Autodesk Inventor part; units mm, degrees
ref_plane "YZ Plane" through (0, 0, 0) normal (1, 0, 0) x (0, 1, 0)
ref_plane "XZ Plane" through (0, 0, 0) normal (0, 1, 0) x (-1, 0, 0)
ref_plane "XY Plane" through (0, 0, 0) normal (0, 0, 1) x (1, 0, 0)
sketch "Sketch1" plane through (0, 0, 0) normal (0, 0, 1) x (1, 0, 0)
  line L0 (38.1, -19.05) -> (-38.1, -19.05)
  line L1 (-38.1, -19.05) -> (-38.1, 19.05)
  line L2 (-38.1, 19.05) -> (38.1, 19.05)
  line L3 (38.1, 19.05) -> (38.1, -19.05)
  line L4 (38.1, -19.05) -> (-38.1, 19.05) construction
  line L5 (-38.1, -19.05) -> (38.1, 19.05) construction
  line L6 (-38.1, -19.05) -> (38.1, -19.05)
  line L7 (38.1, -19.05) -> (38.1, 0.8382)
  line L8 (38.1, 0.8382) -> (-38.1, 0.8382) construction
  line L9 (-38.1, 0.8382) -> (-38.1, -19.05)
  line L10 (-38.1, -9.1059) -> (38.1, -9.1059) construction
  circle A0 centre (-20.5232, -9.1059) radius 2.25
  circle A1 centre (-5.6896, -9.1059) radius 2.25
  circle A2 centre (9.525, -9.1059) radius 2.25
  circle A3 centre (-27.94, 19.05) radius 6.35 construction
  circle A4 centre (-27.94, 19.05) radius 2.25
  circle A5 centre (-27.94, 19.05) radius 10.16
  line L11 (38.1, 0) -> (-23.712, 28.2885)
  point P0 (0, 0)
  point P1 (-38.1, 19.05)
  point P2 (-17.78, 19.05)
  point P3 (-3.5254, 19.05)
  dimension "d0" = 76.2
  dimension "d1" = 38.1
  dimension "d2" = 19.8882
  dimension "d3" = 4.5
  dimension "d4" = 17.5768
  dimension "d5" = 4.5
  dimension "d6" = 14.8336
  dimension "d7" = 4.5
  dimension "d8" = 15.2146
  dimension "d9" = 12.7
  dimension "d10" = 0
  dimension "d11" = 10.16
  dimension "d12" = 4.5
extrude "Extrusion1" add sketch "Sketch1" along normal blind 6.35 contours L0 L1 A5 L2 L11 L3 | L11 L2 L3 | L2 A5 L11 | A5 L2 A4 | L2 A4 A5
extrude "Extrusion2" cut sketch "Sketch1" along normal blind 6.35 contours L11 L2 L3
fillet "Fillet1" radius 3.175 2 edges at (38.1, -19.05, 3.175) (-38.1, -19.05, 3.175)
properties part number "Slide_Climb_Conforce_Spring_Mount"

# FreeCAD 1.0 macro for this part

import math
import FreeCAD as App
import Part
import Sketcher
from FreeCAD import Vector
Q = App.Units.Quantity


def edges_at(feature, points):
    """Names of the edges that pass closest to the given points."""
    edges = feature.Shape.Edges
    near = lambda p: min(range(len(edges)), key=lambda i: edges[i].distToShape(Part.Vertex(*p))[0])
    return sorted({f"Edge{near(p) + 1}" for p in points})


def add_polygon(sketch, points):
    """Adds a closed chain of lines whose ends are joined by coincident constraints."""
    first, n = sketch.GeometryCount, len(points)
    for a, b in zip(points, points[1:] + points[:1]):
        sketch.addGeometry(Part.LineSegment(App.Vector(*a, 0), App.Vector(*b, 0)), False)
    for i in range(n):
        sketch.addConstraint(Sketcher.Constraint("Coincident", first + i, 2, first + (i + 1) % n, 1))

doc = App.newDocument("Part")
params = doc.addObject("Spreadsheet::Sheet", "Params")
for row, (alias, value) in enumerate([
    ("sketch1_radius", "0.4 in"),
    ("sketch1_width", "3 in"),
    ("sketch1_height", "1.5 in"),
    ("pad1_length", "0.25 in"),
    ("sketch2_height", "0.75 in"),
    ("pocket1_length", "0.25 in"),
    ("fillet_radius", "0.125 in"),
], start=1):
    params.set(f"A{row}", alias)
    params.set(f"B{row}", "=" + value)
    params.setAlias(f"B{row}", alias)

body = doc.addObject("PartDesign::Body", "Body")

# Sketch on XY plane
sketch1 = body.newObject("Sketcher::SketchObject", "Sketch")
sketch1.AttachmentSupport = (doc.getObject("XY_Plane"), [""])
sketch1.MapMode = "FlatFace"
sketch1.addGeometry(Part.LineSegment(Vector(-38.1, -19.1, 0), Vector(38.1, -19.1, 0)), False)
sketch1.addGeometry(Part.LineSegment(Vector(38.1, -19.1, 0), Vector(38.1, 19.1, 0)), False)
sketch1.addGeometry(Part.LineSegment(Vector(38.1, 19.1, 0), Vector(-3.5, 19.1, 0)), False)
sketch1.addGeometry(Part.LineSegment(Vector(-3.5, 19.1, 0), Vector(-23.7, 28.3, 0)), False)
sketch1.addGeometry(Part.ArcOfCircle(Part.Circle(Vector(-27.9, 19.1, 0), Vector(0, 0, 1), 10.2), math.radians(65), math.radians(180)), False)
sketch1.addGeometry(Part.LineSegment(Vector(-38.1, 19.1, 0), Vector(-38.1, -19.1, 0)), False)
sketch1.addGeometry(Part.Circle(Vector(-20.5, -9.1, 0), Vector(0, 0, 1), 2.2), False)
sketch1.addGeometry(Part.Circle(Vector(-5.7, -9.1, 0), Vector(0, 0, 1), 2.2), False)
sketch1.addGeometry(Part.Circle(Vector(9.5, -9.1, 0), Vector(0, 0, 1), 2.2), False)
sketch1.addGeometry(Part.Circle(Vector(-27.9, 19.1, 0), Vector(0, 0, 1), 2.2), False)
sketch1.addConstraint(Sketcher.Constraint("Coincident", 0, 2, 1, 1))
sketch1.addConstraint(Sketcher.Constraint("Coincident", 1, 2, 2, 1))
sketch1.addConstraint(Sketcher.Constraint("Coincident", 2, 2, 3, 1))
sketch1.addConstraint(Sketcher.Constraint("Tangent", 3, 2, 4, 1))
sketch1.addConstraint(Sketcher.Constraint("Tangent", 4, 2, 5, 1))
sketch1.addConstraint(Sketcher.Constraint("Coincident", 5, 2, 0, 1))
sketch1.addConstraint(Sketcher.Constraint("Horizontal", 0))
sketch1.addConstraint(Sketcher.Constraint("Vertical", 1))
sketch1.addConstraint(Sketcher.Constraint("Horizontal", 2))
sketch1.addConstraint(Sketcher.Constraint("Vertical", 5))
sketch1.addConstraint(Sketcher.Constraint("Coincident", 9, 3, 4, 3))
sketch1.addConstraint(Sketcher.Constraint("Equal", 6, 7))
sketch1.addConstraint(Sketcher.Constraint("Equal", 7, 8))
sketch1.addConstraint(Sketcher.Constraint("Equal", 8, 9))
sketch1.addConstraint(Sketcher.Constraint("Symmetric", 0, 2, 4, 2, -1, 1))
sketch1.addConstraint(Sketcher.Constraint("Horizontal", 6, 3, 7, 3))
sketch1.addConstraint(Sketcher.Constraint("Horizontal", 7, 3, 8, 3))
sketch1.addConstraint(Sketcher.Constraint("Horizontal", 9, 3, 1, 2))
sketch1.addConstraint(Sketcher.Constraint("Radius", 4, Q("0.4 in")))
sketch1.addConstraint(Sketcher.Constraint("DistanceX", 0, 1, 0, 2, Q("3 in")))
sketch1.addConstraint(Sketcher.Constraint("DistanceY", 1, 1, 1, 2, Q("1.5 in")))
sketch1.addConstraint(Sketcher.Constraint("Diameter", 6, Q("4.5 mm")))
sketch1.addConstraint(Sketcher.Constraint("DistanceX", 6, 3, 7, 3, Q("0.584 in")))
sketch1.addConstraint(Sketcher.Constraint("DistanceX", 7, 3, 8, 3, Q("0.599 in")))
sketch1.addConstraint(Sketcher.Constraint("DistanceX", 4, 2, 6, 3, Q("0.692 in")))
sketch1.addConstraint(Sketcher.Constraint("DistanceX", 2, 2, 2, 1, Q("1.6388 in")))
sketch1.addConstraint(Sketcher.Constraint("DistanceY", 6, 3, -1, 1, Q("0.3585 in")))
sketch1.setExpression("Constraints[18]", "Params.sketch1_radius")
sketch1.setExpression("Constraints[19]", "Params.sketch1_width")
sketch1.setExpression("Constraints[20]", "Params.sketch1_height")
pad1 = body.newObject("PartDesign::Pad", "Pad")
pad1.Profile = sketch1
pad1.setExpression("Length", "Params.pad1_length")

# Sketch on XY plane
sketch2 = body.newObject("Sketcher::SketchObject", "Sketch001")
sketch2.AttachmentSupport = (doc.getObject("XY_Plane"), [""])
sketch2.MapMode = "FlatFace"
add_polygon(sketch2, [(-4, 19), (38, 0), (38, 19)])  # lines 0-2
sketch2.addConstraint(Sketcher.Constraint("Vertical", 1))
sketch2.addConstraint(Sketcher.Constraint("Horizontal", 2))
sketch2.addConstraint(Sketcher.Constraint("PointOnObject", 0, 2, -1))
sketch2.addConstraint(Sketcher.Constraint("DistanceX", -1, 1, 0, 2, Q("1.5 in")))
sketch2.addConstraint(Sketcher.Constraint("DistanceY", 1, 1, 1, 2, Q("0.75 in")))
sketch2.addConstraint(Sketcher.Constraint("DistanceX", 2, 2, 2, 1, Q("1.6388 in")))
sketch2.setExpression("Constraints[7]", "Params.sketch2_height")
pocket1 = body.newObject("PartDesign::Pocket", "Pocket")
pocket1.Profile = sketch2
pocket1.setExpression("Length", "Params.pocket1_length")
pocket1.Reversed = True
doc.recompute()

fillet = body.newObject("PartDesign::Fillet", "Fillet")
fillet.Base = (pocket1, edges_at(pocket1, [(38.1, -19.05, 3.175), (-38.1, -19.05, 3.175)]))
fillet.setExpression("Radius", "Params.fillet_radius")

doc.recompute()
